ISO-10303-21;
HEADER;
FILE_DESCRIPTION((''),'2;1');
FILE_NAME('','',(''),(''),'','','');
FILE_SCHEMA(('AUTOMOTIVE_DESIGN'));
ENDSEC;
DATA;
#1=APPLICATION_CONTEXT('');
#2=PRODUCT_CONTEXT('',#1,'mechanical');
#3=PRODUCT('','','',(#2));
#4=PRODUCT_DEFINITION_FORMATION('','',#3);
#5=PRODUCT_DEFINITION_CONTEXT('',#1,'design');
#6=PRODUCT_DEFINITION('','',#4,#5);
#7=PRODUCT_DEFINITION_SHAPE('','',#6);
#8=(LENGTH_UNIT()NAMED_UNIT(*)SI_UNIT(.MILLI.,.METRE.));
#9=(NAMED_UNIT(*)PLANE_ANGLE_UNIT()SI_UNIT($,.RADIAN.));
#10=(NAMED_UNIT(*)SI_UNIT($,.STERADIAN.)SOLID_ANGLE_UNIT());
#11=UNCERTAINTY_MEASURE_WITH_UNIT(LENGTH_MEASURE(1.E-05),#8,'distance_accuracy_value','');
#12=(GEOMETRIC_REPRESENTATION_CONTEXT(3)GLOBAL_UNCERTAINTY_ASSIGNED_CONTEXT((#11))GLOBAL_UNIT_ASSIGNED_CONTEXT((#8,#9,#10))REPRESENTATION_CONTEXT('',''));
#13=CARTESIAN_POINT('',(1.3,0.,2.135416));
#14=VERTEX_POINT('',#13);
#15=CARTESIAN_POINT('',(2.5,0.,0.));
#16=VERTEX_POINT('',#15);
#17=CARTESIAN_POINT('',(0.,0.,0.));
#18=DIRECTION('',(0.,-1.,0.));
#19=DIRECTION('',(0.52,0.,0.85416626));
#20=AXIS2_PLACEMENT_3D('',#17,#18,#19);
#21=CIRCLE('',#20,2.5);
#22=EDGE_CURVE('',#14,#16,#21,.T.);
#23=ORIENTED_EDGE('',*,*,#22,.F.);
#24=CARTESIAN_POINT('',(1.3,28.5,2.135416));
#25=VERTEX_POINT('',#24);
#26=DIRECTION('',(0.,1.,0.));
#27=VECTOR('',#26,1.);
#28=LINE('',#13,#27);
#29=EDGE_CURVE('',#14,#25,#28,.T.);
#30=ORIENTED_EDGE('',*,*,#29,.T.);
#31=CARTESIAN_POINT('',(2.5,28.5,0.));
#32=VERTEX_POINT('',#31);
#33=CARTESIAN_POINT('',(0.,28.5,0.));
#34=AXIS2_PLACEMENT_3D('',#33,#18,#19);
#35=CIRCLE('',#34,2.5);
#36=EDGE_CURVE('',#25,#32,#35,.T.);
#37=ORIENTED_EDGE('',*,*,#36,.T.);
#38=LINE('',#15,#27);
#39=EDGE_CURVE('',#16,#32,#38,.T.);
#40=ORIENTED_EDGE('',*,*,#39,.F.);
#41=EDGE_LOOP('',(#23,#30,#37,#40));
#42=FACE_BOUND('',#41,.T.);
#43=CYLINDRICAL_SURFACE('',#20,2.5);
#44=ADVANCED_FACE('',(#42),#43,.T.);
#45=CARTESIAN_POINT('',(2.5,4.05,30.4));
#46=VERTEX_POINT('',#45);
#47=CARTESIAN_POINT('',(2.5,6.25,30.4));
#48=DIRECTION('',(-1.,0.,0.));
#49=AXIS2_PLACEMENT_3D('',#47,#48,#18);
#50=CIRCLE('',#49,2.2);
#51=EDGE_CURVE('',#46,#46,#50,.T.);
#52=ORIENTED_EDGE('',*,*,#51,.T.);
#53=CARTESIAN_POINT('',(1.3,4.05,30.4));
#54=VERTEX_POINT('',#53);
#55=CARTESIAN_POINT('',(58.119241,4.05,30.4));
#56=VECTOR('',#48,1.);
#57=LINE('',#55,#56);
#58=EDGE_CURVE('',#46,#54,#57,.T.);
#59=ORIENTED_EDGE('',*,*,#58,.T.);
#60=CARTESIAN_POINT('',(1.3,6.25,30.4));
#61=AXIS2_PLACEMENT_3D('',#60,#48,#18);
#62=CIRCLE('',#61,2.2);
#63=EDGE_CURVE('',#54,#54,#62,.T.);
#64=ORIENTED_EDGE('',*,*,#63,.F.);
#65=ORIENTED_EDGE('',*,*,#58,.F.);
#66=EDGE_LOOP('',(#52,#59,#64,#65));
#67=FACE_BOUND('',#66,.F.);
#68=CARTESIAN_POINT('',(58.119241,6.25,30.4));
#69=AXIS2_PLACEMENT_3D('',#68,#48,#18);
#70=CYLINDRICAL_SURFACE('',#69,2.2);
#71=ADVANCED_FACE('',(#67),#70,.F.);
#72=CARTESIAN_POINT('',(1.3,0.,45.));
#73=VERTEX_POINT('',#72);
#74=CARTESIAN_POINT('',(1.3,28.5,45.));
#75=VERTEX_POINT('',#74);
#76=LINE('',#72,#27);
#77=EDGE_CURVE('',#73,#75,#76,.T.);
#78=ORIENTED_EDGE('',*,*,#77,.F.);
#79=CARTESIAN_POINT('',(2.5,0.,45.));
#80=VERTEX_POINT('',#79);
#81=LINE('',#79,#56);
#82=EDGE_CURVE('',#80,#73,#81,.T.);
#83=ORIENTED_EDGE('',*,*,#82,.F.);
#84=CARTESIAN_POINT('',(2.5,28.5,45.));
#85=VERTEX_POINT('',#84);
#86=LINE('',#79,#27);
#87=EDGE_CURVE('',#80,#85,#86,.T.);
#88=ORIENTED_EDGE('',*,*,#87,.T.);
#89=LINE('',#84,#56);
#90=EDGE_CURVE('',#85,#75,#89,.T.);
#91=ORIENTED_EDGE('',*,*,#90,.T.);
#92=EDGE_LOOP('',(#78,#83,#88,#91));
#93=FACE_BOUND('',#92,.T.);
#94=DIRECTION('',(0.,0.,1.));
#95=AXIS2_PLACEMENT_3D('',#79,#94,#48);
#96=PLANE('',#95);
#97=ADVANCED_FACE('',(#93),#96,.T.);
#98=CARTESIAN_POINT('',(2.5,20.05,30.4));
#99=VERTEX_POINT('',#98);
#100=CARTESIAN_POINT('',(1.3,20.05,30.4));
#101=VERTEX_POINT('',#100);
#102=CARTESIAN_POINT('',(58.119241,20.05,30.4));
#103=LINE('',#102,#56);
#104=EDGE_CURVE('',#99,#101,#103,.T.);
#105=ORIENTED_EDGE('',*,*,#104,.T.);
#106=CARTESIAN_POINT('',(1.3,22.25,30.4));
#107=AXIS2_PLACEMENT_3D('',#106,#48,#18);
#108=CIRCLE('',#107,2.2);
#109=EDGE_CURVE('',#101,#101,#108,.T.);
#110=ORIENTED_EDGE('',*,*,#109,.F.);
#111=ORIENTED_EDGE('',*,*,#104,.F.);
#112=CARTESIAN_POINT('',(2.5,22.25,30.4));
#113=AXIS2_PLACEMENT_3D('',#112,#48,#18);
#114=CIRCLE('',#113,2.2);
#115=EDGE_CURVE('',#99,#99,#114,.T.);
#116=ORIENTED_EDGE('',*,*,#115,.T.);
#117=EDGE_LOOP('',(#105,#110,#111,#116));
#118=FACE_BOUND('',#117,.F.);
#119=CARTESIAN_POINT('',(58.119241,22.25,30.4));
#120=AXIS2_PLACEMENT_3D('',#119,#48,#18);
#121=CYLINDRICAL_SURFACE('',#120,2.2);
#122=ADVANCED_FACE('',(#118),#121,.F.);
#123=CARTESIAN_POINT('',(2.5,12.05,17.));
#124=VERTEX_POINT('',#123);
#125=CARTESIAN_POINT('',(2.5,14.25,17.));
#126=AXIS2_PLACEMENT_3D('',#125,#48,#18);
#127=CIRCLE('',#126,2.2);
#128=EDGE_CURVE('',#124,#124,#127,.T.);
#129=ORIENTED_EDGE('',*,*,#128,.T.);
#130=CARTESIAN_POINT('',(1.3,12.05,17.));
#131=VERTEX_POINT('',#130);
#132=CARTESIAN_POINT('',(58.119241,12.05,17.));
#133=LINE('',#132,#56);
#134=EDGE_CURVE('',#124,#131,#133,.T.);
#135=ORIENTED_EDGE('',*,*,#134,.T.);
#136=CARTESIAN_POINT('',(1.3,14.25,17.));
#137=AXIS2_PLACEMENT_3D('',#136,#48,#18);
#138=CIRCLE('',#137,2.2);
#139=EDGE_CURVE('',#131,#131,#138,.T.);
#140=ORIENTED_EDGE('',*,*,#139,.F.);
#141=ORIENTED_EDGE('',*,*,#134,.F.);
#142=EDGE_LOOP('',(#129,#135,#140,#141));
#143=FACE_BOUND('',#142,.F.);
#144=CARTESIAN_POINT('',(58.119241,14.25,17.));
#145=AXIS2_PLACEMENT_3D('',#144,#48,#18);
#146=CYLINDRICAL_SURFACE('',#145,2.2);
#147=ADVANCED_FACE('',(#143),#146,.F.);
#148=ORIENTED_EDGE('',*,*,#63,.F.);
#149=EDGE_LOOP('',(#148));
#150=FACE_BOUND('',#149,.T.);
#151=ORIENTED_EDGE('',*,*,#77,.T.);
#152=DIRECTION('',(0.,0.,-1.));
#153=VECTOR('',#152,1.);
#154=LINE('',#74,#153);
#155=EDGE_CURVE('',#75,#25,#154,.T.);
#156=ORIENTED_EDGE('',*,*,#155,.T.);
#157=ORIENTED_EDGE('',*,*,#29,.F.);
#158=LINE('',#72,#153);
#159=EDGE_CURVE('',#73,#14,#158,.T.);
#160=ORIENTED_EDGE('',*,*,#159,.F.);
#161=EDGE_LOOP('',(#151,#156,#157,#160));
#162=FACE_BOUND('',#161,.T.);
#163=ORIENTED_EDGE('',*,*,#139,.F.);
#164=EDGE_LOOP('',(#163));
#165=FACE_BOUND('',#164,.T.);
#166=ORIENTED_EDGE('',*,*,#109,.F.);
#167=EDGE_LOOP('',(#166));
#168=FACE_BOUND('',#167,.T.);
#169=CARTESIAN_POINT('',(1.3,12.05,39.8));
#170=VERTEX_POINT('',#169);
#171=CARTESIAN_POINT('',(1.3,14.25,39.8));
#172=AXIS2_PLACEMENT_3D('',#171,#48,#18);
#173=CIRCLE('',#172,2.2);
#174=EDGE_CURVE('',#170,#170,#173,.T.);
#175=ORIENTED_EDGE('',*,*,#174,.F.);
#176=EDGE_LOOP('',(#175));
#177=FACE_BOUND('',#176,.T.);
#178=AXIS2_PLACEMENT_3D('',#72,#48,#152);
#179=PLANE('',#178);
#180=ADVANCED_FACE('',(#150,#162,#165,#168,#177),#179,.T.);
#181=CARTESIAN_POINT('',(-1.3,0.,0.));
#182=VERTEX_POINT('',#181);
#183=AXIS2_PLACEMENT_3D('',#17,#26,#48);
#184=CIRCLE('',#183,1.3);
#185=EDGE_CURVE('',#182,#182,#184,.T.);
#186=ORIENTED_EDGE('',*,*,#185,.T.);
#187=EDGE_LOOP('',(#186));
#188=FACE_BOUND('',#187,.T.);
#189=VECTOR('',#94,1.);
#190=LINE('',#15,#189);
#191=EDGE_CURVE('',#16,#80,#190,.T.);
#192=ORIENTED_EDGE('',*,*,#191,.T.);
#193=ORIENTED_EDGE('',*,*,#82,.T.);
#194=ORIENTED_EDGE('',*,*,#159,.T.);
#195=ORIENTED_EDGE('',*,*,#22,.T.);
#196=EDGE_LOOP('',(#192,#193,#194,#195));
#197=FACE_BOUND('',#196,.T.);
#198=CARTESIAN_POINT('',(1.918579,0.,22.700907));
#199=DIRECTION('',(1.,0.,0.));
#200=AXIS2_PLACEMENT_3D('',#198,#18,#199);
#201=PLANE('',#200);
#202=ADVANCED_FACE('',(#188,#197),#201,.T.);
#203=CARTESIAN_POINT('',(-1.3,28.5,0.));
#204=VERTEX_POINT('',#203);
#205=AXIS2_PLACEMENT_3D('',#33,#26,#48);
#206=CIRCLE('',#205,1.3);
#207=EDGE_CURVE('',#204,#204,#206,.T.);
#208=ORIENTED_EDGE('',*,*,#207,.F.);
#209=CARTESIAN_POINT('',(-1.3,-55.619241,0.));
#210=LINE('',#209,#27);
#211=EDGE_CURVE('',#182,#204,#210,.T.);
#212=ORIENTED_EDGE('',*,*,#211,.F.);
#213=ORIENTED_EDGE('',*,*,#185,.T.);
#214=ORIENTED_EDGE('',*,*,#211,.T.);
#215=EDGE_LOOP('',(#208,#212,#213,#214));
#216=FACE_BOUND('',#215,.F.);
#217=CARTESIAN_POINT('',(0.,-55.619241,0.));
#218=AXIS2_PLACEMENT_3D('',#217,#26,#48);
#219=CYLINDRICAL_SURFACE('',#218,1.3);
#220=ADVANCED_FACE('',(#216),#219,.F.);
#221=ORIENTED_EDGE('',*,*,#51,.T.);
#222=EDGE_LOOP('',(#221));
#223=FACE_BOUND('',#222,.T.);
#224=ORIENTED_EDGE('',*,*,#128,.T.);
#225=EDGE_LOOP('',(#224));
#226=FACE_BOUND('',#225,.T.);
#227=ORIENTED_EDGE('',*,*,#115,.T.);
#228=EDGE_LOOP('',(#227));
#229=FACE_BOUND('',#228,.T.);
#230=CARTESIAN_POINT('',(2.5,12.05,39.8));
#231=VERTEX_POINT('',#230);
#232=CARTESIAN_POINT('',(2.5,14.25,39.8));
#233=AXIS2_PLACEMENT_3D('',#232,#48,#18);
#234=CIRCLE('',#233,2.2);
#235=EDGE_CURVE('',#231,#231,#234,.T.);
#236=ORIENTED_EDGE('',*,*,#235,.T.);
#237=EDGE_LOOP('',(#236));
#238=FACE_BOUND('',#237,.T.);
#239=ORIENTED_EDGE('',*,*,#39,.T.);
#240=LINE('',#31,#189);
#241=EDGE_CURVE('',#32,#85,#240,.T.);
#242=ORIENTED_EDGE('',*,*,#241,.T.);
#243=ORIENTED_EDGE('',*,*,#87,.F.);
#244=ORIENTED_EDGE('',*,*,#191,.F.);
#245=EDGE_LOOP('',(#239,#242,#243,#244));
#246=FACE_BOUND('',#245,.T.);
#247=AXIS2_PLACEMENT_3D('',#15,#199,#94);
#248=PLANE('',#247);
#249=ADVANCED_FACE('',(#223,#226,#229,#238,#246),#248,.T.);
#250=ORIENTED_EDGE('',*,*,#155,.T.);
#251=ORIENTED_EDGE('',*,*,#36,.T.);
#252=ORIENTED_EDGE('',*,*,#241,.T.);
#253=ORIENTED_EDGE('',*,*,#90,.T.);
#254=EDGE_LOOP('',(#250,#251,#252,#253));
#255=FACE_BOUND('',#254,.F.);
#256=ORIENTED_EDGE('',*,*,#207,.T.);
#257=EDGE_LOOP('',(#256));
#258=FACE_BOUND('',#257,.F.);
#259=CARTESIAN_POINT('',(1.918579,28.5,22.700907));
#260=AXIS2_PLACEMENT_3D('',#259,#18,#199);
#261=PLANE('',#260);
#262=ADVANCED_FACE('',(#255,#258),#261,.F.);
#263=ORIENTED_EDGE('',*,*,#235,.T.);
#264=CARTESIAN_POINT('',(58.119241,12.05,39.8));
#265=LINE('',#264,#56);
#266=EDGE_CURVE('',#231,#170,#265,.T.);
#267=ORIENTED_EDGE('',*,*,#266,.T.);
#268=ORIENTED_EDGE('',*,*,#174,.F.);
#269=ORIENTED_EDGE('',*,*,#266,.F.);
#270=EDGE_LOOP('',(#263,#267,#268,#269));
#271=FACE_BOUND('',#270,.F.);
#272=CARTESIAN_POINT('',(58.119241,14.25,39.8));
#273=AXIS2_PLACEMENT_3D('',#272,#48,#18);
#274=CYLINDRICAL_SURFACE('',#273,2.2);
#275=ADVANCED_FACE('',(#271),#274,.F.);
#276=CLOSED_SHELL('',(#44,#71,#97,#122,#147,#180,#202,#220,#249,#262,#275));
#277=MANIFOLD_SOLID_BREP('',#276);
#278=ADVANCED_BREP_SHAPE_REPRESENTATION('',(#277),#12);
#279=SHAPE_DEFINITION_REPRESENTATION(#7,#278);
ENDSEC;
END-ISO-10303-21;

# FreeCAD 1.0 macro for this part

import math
import FreeCAD as App
import Part
import Sketcher

V = App.Vector
Q = App.Units.Quantity

doc = App.newDocument("Part")
body = doc.addObject("PartDesign::Body", "Body")

# Sketch on XZ plane
sketch1 = doc.addObject("Sketcher::SketchObject", "Sketch")
body.addObject(sketch1)
sketch1.AttachmentSupport = (doc.XZ_Plane, [""])
sketch1.MapMode = "FlatFace"
sketch1.addGeometry(Part.LineSegment(V(2.5, 0, 0), V(2.5, 45, 0)), False)
sketch1.addGeometry(Part.LineSegment(V(2.5, 45, 0), V(1.3, 45, 0)), False)
sketch1.addGeometry(Part.LineSegment(V(1.3, 45, 0), V(1.3, 2.1, 0)), False)
sketch1.addGeometry(Part.ArcOfCircle(Part.Circle(V(0, 0, 0), V(0, 0, 1), 2.5), math.radians(59), math.radians(360)), False)
sketch1.addConstraint(Sketcher.Constraint("Coincident", 0, 2, 1, 1))
sketch1.addConstraint(Sketcher.Constraint("Coincident", 1, 2, 2, 1))
sketch1.addConstraint(Sketcher.Constraint("Coincident", 2, 2, 3, 1))
sketch1.addConstraint(Sketcher.Constraint("Tangent", 3, 2, 0, 1))
sketch1.addConstraint(Sketcher.Constraint("Vertical", 0))
sketch1.addConstraint(Sketcher.Constraint("Horizontal", 1))
sketch1.addConstraint(Sketcher.Constraint("Vertical", 2))
sketch1.addConstraint(Sketcher.Constraint("Coincident", 3, 3, -1, 1))
sketch1.addConstraint(Sketcher.Constraint("Radius", 3, Q("2.5 mm")))
sketch1.addConstraint(Sketcher.Constraint("DistanceY", 0, 1, 0, 2, Q("45 mm")))
sketch1.addConstraint(Sketcher.Constraint("DistanceX", 1, 2, 1, 1, Q("1.2 mm")))
pad1 = doc.addObject("PartDesign::Pad", "Pad")
body.addObject(pad1)
pad1.Profile = sketch1
pad1.Length = 28.5
pad1.Reversed = True

# Sketch on XZ plane
sketch2 = doc.addObject("Sketcher::SketchObject", "Sketch001")
body.addObject(sketch2)
sketch2.AttachmentSupport = (doc.XZ_Plane, [""])
sketch2.MapMode = "FlatFace"
sketch2.addGeometry(Part.Circle(V(0, 0, 0), V(0, 0, 1), 1.3), False)
sketch2.addConstraint(Sketcher.Constraint("Coincident", 0, 3, -1, 1))
sketch2.addConstraint(Sketcher.Constraint("Diameter", 0, Q("2.6 mm")))
doc.recompute()
hole = doc.addObject("PartDesign::Hole", "Hole")
body.addObject(hole)
hole.Profile = sketch2
hole.ThreadType = "None"
hole.Diameter = 2.6
hole.DepthType = "ThroughAll"

# Sketch on YZ plane
sketch3 = doc.addObject("Sketcher::SketchObject", "Sketch002")
body.addObject(sketch3)
sketch3.AttachmentSupport = (doc.YZ_Plane, [""])
sketch3.MapMode = "FlatFace"
sketch3.AttachmentOffset = App.Placement(V(0, 0, 2.5), App.Rotation())
sketch3.addGeometry(Part.Circle(V(14.2, 39.8, 0), V(0, 0, 1), 2.2), False)
sketch3.addGeometry(Part.Circle(V(22.2, 30.4, 0), V(0, 0, 1), 2.2), False)
sketch3.addGeometry(Part.Circle(V(6.2, 30.4, 0), V(0, 0, 1), 2.2), False)
sketch3.addGeometry(Part.Circle(V(14.2, 17, 0), V(0, 0, 1), 2.2), False)
sketch3.addConstraint(Sketcher.Constraint("Equal", 0, 1))
sketch3.addConstraint(Sketcher.Constraint("Equal", 1, 2))
sketch3.addConstraint(Sketcher.Constraint("Equal", 2, 3))
sketch3.addConstraint(Sketcher.Constraint("Horizontal", 1, 3, 2, 3))
sketch3.addConstraint(Sketcher.Constraint("Vertical", 0, 3, 3, 3))
sketch3.addConstraint(Sketcher.Constraint("Diameter", 0, Q("4.4 mm")))
sketch3.addConstraint(Sketcher.Constraint("DistanceY", -1, 1, 3, 3, Q("17 mm")))
sketch3.addConstraint(Sketcher.Constraint("DistanceX", 0, 3, 1, 3, Q("8 mm")))
sketch3.addConstraint(Sketcher.Constraint("DistanceX", 2, 3, 0, 3, Q("8 mm")))
sketch3.addConstraint(Sketcher.Constraint("DistanceY", -1, 1, 0, 3, Q("39.8 mm")))
sketch3.addConstraint(Sketcher.Constraint("DistanceY", -1, 1, 1, 3, Q("30.4 mm")))
sketch3.addConstraint(Sketcher.Constraint("DistanceX", -1, 1, 0, 3, Q("14.25 mm")))
doc.recompute()
hole2 = doc.addObject("PartDesign::Hole", "Hole001")
body.addObject(hole2)
hole2.Profile = sketch3
hole2.ThreadType = "None"
hole2.Diameter = 4.4
hole2.DepthType = "ThroughAll"

doc.recompute()
